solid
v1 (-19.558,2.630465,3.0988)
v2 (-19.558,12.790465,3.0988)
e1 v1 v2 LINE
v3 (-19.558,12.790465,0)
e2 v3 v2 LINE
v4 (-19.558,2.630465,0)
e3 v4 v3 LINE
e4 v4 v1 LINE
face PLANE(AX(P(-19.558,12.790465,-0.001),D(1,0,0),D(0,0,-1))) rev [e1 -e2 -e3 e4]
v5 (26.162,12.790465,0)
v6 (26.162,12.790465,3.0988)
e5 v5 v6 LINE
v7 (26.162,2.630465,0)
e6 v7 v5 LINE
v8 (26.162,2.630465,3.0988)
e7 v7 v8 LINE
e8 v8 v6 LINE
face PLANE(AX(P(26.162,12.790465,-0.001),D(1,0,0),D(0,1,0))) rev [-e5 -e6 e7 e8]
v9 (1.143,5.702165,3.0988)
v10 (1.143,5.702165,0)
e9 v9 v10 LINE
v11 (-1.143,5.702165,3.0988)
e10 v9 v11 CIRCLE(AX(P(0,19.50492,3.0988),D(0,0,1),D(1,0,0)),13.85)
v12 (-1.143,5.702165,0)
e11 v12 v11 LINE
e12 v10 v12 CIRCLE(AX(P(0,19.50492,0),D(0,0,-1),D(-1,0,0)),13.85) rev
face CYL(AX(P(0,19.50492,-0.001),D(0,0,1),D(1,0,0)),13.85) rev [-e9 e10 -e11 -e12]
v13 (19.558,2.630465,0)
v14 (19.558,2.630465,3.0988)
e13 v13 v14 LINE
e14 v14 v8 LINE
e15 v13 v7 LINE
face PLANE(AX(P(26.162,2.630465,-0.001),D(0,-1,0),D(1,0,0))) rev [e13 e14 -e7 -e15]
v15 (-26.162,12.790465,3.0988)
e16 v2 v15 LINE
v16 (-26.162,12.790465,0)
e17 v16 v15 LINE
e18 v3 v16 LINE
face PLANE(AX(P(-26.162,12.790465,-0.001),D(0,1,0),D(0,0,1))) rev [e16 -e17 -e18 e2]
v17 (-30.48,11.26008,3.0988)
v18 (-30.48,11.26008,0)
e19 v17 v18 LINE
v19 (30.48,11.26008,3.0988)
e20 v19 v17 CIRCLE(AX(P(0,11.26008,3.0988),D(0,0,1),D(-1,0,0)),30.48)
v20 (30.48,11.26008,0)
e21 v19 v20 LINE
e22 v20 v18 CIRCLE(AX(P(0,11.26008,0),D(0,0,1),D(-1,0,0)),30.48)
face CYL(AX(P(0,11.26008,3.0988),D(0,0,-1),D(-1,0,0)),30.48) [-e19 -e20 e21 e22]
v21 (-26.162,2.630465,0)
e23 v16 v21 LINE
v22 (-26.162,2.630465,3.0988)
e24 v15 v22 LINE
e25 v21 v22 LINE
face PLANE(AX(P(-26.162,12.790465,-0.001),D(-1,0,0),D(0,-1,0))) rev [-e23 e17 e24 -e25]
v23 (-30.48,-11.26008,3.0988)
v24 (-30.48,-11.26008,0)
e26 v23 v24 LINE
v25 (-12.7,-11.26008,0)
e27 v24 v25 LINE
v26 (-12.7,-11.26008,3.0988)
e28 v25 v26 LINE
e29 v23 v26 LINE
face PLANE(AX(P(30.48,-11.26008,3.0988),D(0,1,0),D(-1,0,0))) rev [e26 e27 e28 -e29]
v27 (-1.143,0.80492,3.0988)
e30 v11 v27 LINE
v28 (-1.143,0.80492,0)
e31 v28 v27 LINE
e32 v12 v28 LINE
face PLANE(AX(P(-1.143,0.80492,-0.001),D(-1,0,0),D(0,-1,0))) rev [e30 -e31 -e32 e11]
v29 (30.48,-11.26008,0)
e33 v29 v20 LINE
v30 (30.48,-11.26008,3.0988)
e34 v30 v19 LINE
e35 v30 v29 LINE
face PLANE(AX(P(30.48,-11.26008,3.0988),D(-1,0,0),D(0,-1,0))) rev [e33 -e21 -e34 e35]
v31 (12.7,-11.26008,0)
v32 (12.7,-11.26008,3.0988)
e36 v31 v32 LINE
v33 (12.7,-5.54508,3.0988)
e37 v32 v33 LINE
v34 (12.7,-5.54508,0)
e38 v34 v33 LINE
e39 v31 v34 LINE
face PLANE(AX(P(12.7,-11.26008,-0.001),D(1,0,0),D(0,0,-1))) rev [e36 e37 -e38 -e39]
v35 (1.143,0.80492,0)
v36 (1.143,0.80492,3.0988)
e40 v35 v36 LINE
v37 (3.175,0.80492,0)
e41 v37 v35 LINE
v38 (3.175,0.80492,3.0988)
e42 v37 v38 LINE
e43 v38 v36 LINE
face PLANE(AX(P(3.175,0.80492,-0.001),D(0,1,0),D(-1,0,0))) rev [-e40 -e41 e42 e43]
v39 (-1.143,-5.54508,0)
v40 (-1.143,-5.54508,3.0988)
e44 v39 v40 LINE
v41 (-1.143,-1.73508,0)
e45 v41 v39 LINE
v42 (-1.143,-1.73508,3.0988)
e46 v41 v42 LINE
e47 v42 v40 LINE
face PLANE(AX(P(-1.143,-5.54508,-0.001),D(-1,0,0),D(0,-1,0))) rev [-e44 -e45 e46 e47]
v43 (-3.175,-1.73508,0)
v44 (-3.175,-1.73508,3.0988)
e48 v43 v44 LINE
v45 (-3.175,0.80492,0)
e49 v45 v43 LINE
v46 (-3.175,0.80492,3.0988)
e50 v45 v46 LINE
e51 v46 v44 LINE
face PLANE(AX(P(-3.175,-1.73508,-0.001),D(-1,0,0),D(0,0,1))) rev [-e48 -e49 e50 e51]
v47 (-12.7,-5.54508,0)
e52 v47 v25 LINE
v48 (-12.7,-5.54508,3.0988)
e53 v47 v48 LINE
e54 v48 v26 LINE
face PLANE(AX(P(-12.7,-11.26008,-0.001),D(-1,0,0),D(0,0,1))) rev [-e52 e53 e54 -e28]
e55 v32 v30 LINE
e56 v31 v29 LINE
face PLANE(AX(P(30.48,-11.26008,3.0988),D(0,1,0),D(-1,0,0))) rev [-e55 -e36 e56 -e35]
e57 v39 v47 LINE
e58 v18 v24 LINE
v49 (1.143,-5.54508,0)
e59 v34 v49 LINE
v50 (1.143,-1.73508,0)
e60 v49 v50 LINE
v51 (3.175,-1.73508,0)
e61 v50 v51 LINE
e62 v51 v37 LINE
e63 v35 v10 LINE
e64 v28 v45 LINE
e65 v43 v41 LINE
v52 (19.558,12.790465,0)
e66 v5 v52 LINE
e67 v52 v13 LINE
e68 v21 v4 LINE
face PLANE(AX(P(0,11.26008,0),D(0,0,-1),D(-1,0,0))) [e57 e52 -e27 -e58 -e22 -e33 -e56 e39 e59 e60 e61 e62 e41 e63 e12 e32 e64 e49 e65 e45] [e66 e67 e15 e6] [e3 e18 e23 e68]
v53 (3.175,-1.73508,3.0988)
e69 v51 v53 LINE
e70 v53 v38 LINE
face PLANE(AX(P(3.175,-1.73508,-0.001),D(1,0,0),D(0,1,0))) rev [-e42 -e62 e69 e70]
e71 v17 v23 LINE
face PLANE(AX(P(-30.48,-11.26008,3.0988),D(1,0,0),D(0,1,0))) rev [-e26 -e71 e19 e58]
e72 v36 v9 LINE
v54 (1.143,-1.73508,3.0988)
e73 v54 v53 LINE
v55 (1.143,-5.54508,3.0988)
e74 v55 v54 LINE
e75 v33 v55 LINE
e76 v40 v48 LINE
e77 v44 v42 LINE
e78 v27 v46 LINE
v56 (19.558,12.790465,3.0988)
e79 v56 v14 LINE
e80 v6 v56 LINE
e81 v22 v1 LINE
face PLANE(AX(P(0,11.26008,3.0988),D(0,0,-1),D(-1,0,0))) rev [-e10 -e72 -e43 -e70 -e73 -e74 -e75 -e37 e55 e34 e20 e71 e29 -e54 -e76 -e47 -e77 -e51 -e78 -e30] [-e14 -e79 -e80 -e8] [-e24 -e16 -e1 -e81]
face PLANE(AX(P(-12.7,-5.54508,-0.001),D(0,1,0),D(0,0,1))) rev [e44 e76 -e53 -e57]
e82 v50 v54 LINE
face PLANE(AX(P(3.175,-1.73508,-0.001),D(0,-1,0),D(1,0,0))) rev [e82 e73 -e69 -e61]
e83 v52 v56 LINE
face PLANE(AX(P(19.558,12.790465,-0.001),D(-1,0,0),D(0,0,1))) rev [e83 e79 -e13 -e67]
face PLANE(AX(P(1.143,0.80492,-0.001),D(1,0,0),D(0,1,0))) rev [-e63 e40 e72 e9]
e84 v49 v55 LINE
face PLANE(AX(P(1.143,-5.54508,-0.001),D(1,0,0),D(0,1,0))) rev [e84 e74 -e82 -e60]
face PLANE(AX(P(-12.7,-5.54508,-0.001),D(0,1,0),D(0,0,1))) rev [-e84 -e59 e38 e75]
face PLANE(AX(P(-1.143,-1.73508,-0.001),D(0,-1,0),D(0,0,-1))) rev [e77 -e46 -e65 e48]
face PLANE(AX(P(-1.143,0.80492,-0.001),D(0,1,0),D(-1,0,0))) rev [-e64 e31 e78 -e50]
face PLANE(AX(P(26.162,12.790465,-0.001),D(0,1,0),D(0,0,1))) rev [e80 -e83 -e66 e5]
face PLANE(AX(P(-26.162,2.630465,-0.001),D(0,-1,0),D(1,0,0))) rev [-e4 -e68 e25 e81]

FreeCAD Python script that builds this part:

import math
import FreeCAD as App
import Part
import Sketcher

V = App.Vector
Q = App.Units.Quantity

doc = App.newDocument("Part")
params = doc.addObject("Spreadsheet::Sheet", "Params")
for row, (alias, value) in enumerate([
    ("sketch1_radius", "1.2 in"),
    ("pad1_length", "0.122 in"),
    ("sketch3_width", "1 in"),
    ("sketch3_height", "0.225 in"),
    ("sketch4_height", "0.1 in"),
    ("sketch4_height2", "0.3 in"),
    ("sketch4_width", "0.08 in"),
    ("sketch4_width2", "0.09 in"),
    ("sketch4_height3", "0.15 in"),
    ("sketch5_height", "0.4 in"),
    ("sketch5_width", "0.26 in"),
    ("sketch6_height", "0.4 in"),
    ("sketch6_width", "0.26 in"),
], start=1):
    params.set(f"A{row}", alias)
    params.set(f"B{row}", "=" + value)
    params.setAlias(f"B{row}", alias)

body = doc.addObject("PartDesign::Body", "Body")

sketch1 = body.newObject("Sketcher::SketchObject", "Sketch")
sketch1.AttachmentSupport = (doc.getObject("XY_Plane"), [""])
sketch1.MapMode = "FlatFace"
sketch1.addGeometry([
    Part.LineSegment(V(-30, -11, 0), V(30, -11, 0)),
    Part.LineSegment(V(30, -11, 0), V(30, 11, 0)),
    Part.ArcOfCircle(Part.Circle(V(0, 11, 0), V(0, 0, 1), 30), math.radians(0), math.radians(180)),
    Part.LineSegment(V(-30, 11, 0), V(-30, -11, 0)),
], False)
sketch1.addConstraint([
    Sketcher.Constraint("Coincident", 0, 2, 1, 1),
    Sketcher.Constraint("Tangent", 1, 2, 2, 1),
    Sketcher.Constraint("Tangent", 2, 2, 3, 1),
    Sketcher.Constraint("Coincident", 3, 2, 0, 1),
    Sketcher.Constraint("Horizontal", 0),
    Sketcher.Constraint("Vertical", 1),
    Sketcher.Constraint("Vertical", 3),
    Sketcher.Constraint("Symmetric", 0, 2, 2, 2, -1, 1),
    Sketcher.Constraint("Radius", 2, Q("1.2 in")),
    Sketcher.Constraint("DistanceY", 1, 1, 1, 2, Q("22.52016 mm")),
])
sketch1.setExpression("Constraints[8]", "Params.sketch1_radius")
pad1 = body.newObject("PartDesign::Pad", "Pad")
pad1.Profile = sketch1
pad1.setExpression("Length", "Params.pad1_length")

sketch2 = body.newObject("Sketcher::SketchObject", "Sketch001")
sketch2.AttachmentSupport = (doc.getObject("XY_Plane"), [""])
sketch2.MapMode = "FlatFace"
sketch2.AttachmentOffset = App.Placement(V(0, 0, 0.122 * 25.4), App.Rotation())
sketch2.addGeometry(Part.Circle(V(0, 20, 0), V(0, 0, 1), 14), False)
sketch2.addConstraint([
    Sketcher.Constraint("PointOnObject", 0, 3, -2),
    Sketcher.Constraint("Diameter", 0, Q("27.7 mm")),
    Sketcher.Constraint("DistanceY", -1, 1, 0, 3, Q("19.50492 mm")),
])
pocket1 = body.newObject("PartDesign::Pocket", "Pocket")
pocket1.Profile = sketch2
pocket1.Type = "UpToFirst"

sketch3 = body.newObject("Sketcher::SketchObject", "Sketch002")
sketch3.AttachmentSupport = (doc.getObject("XY_Plane"), [""])
sketch3.MapMode = "FlatFace"
sketch3.AttachmentOffset = App.Placement(V(0, 0, 0.122 * 25.4), App.Rotation())
sketch3.addGeometry([
    Part.LineSegment(V(-13, -6, 0), V(-13, -11, 0)),
    Part.LineSegment(V(-13, -11, 0), V(13, -11, 0)),
    Part.LineSegment(V(13, -11, 0), V(13, -6, 0)),
    Part.LineSegment(V(13, -6, 0), V(-13, -6, 0)),
], False)
sketch3.addConstraint([
    Sketcher.Constraint("Coincident", 0, 2, 1, 1),
    Sketcher.Constraint("Coincident", 1, 2, 2, 1),
    Sketcher.Constraint("Coincident", 2, 2, 3, 1),
    Sketcher.Constraint("Coincident", 3, 2, 0, 1),
    Sketcher.Constraint("Vertical", 0),
    Sketcher.Constraint("Horizontal", 1),
    Sketcher.Constraint("Vertical", 2),
    Sketcher.Constraint("Horizontal", 3),
    Sketcher.Constraint("DistanceX", 1, 1, 1, 2, Q("1 in")),
    Sketcher.Constraint("DistanceX", 0, 2, -1, 1, Q("0.5 in")),
    Sketcher.Constraint("DistanceY", 0, 2, 0, 1, Q("0.225 in")),
    Sketcher.Constraint("DistanceY", 0, 2, -1, 1, Q("11.26008 mm")),
])
sketch3.setExpression("Constraints[8]", "Params.sketch3_width")
sketch3.setExpression("Constraints[10]", "Params.sketch3_height")
pocket2 = body.newObject("PartDesign::Pocket", "Pocket001")
pocket2.Profile = sketch3
pocket2.Type = "UpToFirst"

sketch4 = body.newObject("Sketcher::SketchObject", "Sketch003")
sketch4.AttachmentSupport = (doc.getObject("XY_Plane"), [""])
sketch4.MapMode = "FlatFace"
sketch4.AttachmentOffset = App.Placement(V(0, 0, 0.122 * 25.4), App.Rotation())
sketch4.addGeometry([
    Part.LineSegment(V(1.1, -1.7, 0), V(3.2, -1.7, 0)),
    Part.LineSegment(V(3.2, -1.7, 0), V(3.2, 0.8, 0)),
    Part.LineSegment(V(3.2, 0.8, 0), V(1.1, 0.8, 0)),
    Part.LineSegment(V(1.1, 0.8, 0), V(1.1, 8.4, 0)),
    Part.LineSegment(V(1.1, 8.4, 0), V(-1.1, 8.4, 0)),
    Part.LineSegment(V(-1.1, 8.4, 0), V(-1.1, 0.8, 0)),
    Part.LineSegment(V(-1.1, 0.8, 0), V(-3.2, 0.8, 0)),
    Part.LineSegment(V(-3.2, 0.8, 0), V(-3.2, -1.7, 0)),
    Part.LineSegment(V(-3.2, -1.7, 0), V(-1.1, -1.7, 0)),
    Part.LineSegment(V(-1.1, -1.7, 0), V(-1.1, -5.5, 0)),
    Part.LineSegment(V(-1.1, -5.5, 0), V(1.1, -5.5, 0)),
    Part.LineSegment(V(1.1, -5.5, 0), V(1.1, -1.7, 0)),
], False)
sketch4.addConstraint([
    Sketcher.Constraint("Coincident", 0, 2, 1, 1),
    Sketcher.Constraint("Coincident", 1, 2, 2, 1),
    Sketcher.Constraint("Coincident", 2, 2, 3, 1),
    Sketcher.Constraint("Coincident", 3, 2, 4, 1),
    Sketcher.Constraint("Coincident", 4, 2, 5, 1),
    Sketcher.Constraint("Coincident", 5, 2, 6, 1),
    Sketcher.Constraint("Coincident", 6, 2, 7, 1),
    Sketcher.Constraint("Coincident", 7, 2, 8, 1),
    Sketcher.Constraint("Coincident", 8, 2, 9, 1),
    Sketcher.Constraint("Coincident", 9, 2, 10, 1),
    Sketcher.Constraint("Coincident", 10, 2, 11, 1),
    Sketcher.Constraint("Coincident", 11, 2, 0, 1),
    Sketcher.Constraint("Horizontal", 0),
    Sketcher.Constraint("Vertical", 1),
    Sketcher.Constraint("Horizontal", 2),
    Sketcher.Constraint("Vertical", 3),
    Sketcher.Constraint("Horizontal", 4),
    Sketcher.Constraint("Vertical", 5),
    Sketcher.Constraint("Horizontal", 6),
    Sketcher.Constraint("Vertical", 7),
    Sketcher.Constraint("Horizontal", 8),
    Sketcher.Constraint("Vertical", 9),
    Sketcher.Constraint("Horizontal", 10),
    Sketcher.Constraint("Vertical", 11),
    Sketcher.Constraint("Symmetric", 2, 2, 5, 2, -2),
    Sketcher.Constraint("Symmetric", 0, 2, 7, 2, -2),
    Sketcher.Constraint("Vertical", 5, 2, 8, 2),
    Sketcher.Constraint("Vertical", 3, 2, 10, 2),
    Sketcher.Constraint("DistanceY", 1, 1, 1, 2, Q("0.1 in")),
    Sketcher.Constraint("DistanceY", 3, 1, 3, 2, Q("0.3 in")),
    Sketcher.Constraint("DistanceX", 0, 1, 0, 2, Q("0.08 in")),
    Sketcher.Constraint("DistanceX", 4, 2, 4, 1, Q("0.09 in")),
    Sketcher.Constraint("DistanceY", 9, 2, 9, 1, Q("0.15 in")),
    Sketcher.Constraint("DistanceY", 0, 2, -1, 1, Q("1.73508 mm")),
])
sketch4.setExpression("Constraints[28]", "Params.sketch4_height")
sketch4.setExpression("Constraints[29]", "Params.sketch4_height2")
sketch4.setExpression("Constraints[30]", "Params.sketch4_width")
sketch4.setExpression("Constraints[31]", "Params.sketch4_width2")
sketch4.setExpression("Constraints[32]", "Params.sketch4_height3")
pocket3 = body.newObject("PartDesign::Pocket", "Pocket002")
pocket3.Profile = sketch4
pocket3.Type = "UpToFirst"

sketch5 = body.newObject("Sketcher::SketchObject", "Sketch004")
sketch5.AttachmentSupport = (doc.getObject("XY_Plane"), [""])
sketch5.MapMode = "FlatFace"
sketch5.AttachmentOffset = App.Placement(V(0, 0, 0.122 * 25.4), App.Rotation())
sketch5.addGeometry([
    Part.LineSegment(V(20, 13, 0), V(20, 3, 0)),
    Part.LineSegment(V(20, 3, 0), V(26, 3, 0)),
    Part.LineSegment(V(26, 3, 0), V(26, 13, 0)),
    Part.LineSegment(V(26, 13, 0), V(20, 13, 0)),
], False)
sketch5.addConstraint([
    Sketcher.Constraint("Coincident", 0, 2, 1, 1),
    Sketcher.Constraint("Coincident", 1, 2, 2, 1),
    Sketcher.Constraint("Coincident", 2, 2, 3, 1),
    Sketcher.Constraint("Coincident", 3, 2, 0, 1),
    Sketcher.Constraint("Vertical", 0),
    Sketcher.Constraint("Horizontal", 1),
    Sketcher.Constraint("Vertical", 2),
    Sketcher.Constraint("Horizontal", 3),
    Sketcher.Constraint("DistanceY", 0, 2, 0, 1, Q("0.4 in")),
    Sketcher.Constraint("DistanceX", 1, 1, 1, 2, Q("0.26 in")),
    Sketcher.Constraint("DistanceX", -1, 1, 0, 2, Q("0.77 in")),
    Sketcher.Constraint("DistanceY", -1, 1, 0, 2, Q("2.630465 mm")),
])
sketch5.setExpression("Constraints[8]", "Params.sketch5_height")
sketch5.setExpression("Constraints[9]", "Params.sketch5_width")
pocket4 = body.newObject("PartDesign::Pocket", "Pocket003")
pocket4.Profile = sketch5
pocket4.Type = "UpToFirst"

sketch6 = body.newObject("Sketcher::SketchObject", "Sketch005")
sketch6.AttachmentSupport = (doc.getObject("XY_Plane"), [""])
sketch6.MapMode = "FlatFace"
sketch6.AttachmentOffset = App.Placement(V(0, 0, 0.122 * 25.4), App.Rotation())
sketch6.addGeometry([
    Part.LineSegment(V(-26, 13, 0), V(-26, 3, 0)),
    Part.LineSegment(V(-26, 3, 0), V(-20, 3, 0)),
    Part.LineSegment(V(-20, 3, 0), V(-20, 13, 0)),
    Part.LineSegment(V(-20, 13, 0), V(-26, 13, 0)),
], False)
sketch6.addConstraint([
    Sketcher.Constraint("Coincident", 0, 2, 1, 1),
    Sketcher.Constraint("Coincident", 1, 2, 2, 1),
    Sketcher.Constraint("Coincident", 2, 2, 3, 1),
    Sketcher.Constraint("Coincident", 3, 2, 0, 1),
    Sketcher.Constraint("Vertical", 0),
    Sketcher.Constraint("Horizontal", 1),
    Sketcher.Constraint("Vertical", 2),
    Sketcher.Constraint("Horizontal", 3),
    Sketcher.Constraint("DistanceY", 0, 2, 0, 1, Q("0.4 in")),
    Sketcher.Constraint("DistanceX", 1, 1, 1, 2, Q("0.26 in")),
    Sketcher.Constraint("DistanceX", 0, 2, -1, 1, Q("1.03 in")),
    Sketcher.Constraint("DistanceY", -1, 1, 0, 2, Q("2.630465 mm")),
])
sketch6.setExpression("Constraints[8]", "Params.sketch6_height")
sketch6.setExpression("Constraints[9]", "Params.sketch6_width")
pocket5 = body.newObject("PartDesign::Pocket", "Pocket004")
pocket5.Profile = sketch6
pocket5.Type = "UpToFirst"

doc.recompute()
